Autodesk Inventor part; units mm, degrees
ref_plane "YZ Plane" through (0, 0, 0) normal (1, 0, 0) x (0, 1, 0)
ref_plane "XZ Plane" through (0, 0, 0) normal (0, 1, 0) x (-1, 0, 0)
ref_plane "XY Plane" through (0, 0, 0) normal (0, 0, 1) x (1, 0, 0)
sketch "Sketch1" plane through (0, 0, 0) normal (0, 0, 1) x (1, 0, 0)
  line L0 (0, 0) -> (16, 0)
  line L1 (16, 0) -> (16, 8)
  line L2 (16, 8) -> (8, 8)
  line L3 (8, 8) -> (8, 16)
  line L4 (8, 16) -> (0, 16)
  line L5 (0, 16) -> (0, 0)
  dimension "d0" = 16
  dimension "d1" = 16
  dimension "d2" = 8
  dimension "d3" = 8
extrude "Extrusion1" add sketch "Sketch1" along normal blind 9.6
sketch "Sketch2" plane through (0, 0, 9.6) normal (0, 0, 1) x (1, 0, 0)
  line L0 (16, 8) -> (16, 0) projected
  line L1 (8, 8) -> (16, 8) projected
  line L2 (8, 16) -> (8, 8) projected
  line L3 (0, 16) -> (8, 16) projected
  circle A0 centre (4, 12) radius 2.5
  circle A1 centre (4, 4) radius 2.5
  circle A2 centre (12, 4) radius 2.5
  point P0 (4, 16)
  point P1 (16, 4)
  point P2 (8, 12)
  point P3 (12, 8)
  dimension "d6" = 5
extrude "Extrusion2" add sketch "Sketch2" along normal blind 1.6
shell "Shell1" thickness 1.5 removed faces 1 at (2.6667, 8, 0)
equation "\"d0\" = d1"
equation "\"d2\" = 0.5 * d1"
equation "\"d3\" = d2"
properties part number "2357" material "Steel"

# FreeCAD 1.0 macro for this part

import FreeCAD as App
import Part
import Sketcher
from FreeCAD import Vector
Q = App.Units.Quantity


def faces_at(feature, points):
    """Names of the faces that lie closest to the given points."""
    faces = feature.Shape.Faces
    near = lambda p: min(range(len(faces)), key=lambda i: faces[i].distToShape(Part.Vertex(*p))[0])
    return sorted({f"Face{near(p) + 1}" for p in points})


def add_polygon(sketch, points):
    """Adds a closed chain of lines whose ends are joined by coincident constraints."""
    first, n = sketch.GeometryCount, len(points)
    for a, b in zip(points, points[1:] + points[:1]):
        sketch.addGeometry(Part.LineSegment(App.Vector(*a, 0), App.Vector(*b, 0)), False)
    for i in range(n):
        sketch.addConstraint(Sketcher.Constraint("Coincident", first + i, 2, first + (i + 1) % n, 1))

doc = App.newDocument("Part")
body = doc.addObject("PartDesign::Body", "Body")

# Sketch on XY plane
sketch1 = doc.addObject("Sketcher::SketchObject", "Sketch")
body.addObject(sketch1)
sketch1.AttachmentSupport = (doc.XY_Plane, [""])
sketch1.MapMode = "FlatFace"
add_polygon(sketch1, [(0, 16), (0, 0), (16, 0), (16, 8), (8, 8), (8, 16)])  # lines 0-5
sketch1.addConstraint(Sketcher.Constraint("Vertical", 0))
sketch1.addConstraint(Sketcher.Constraint("Horizontal", 1))
sketch1.addConstraint(Sketcher.Constraint("Vertical", 2))
sketch1.addConstraint(Sketcher.Constraint("Horizontal", 3))
sketch1.addConstraint(Sketcher.Constraint("Vertical", 4))
sketch1.addConstraint(Sketcher.Constraint("Horizontal", 5))
sketch1.addConstraint(Sketcher.Constraint("Coincident", 0, 2, -1, 1))
sketch1.addConstraint(Sketcher.Constraint("Equal", 3, 5))
sketch1.addConstraint(Sketcher.Constraint("Equal", 1, 0))
sketch1.addConstraint(Sketcher.Constraint("Equal", 5, 2))
sketch1.addConstraint(Sketcher.Constraint("DistanceX", 1, 1, 1, 2, Q("16 mm")))
pad1 = doc.addObject("PartDesign::Pad", "Pad")
body.addObject(pad1)
pad1.Profile = sketch1
pad1.Length = 9.6

# Sketch on XY plane
sketch2 = doc.addObject("Sketcher::SketchObject", "Sketch001")
body.addObject(sketch2)
sketch2.AttachmentSupport = (doc.XY_Plane, [""])
sketch2.MapMode = "FlatFace"
sketch2.AttachmentOffset = App.Placement(Vector(0, 0, 9.6), App.Rotation())
sketch2.addGeometry(Part.Circle(Vector(4, 12, 0), Vector(0, 0, 1), 2.5), False)
sketch2.addGeometry(Part.Circle(Vector(4, 4, 0), Vector(0, 0, 1), 2.5), False)
sketch2.addGeometry(Part.Circle(Vector(12, 4, 0), Vector(0, 0, 1), 2.5), False)
sketch2.addConstraint(Sketcher.Constraint("Equal", 0, 1))
sketch2.addConstraint(Sketcher.Constraint("Equal", 1, 2))
sketch2.addConstraint(Sketcher.Constraint("Horizontal", 1, 3, 2, 3))
sketch2.addConstraint(Sketcher.Constraint("Vertical", 0, 3, 1, 3))
sketch2.addConstraint(Sketcher.Constraint("Diameter", 0, Q("5 mm")))
sketch2.addConstraint(Sketcher.Constraint("DistanceX", -1, 1, 0, 3, Q("4 mm")))
sketch2.addConstraint(Sketcher.Constraint("DistanceY", -1, 1, 0, 3, Q("12 mm")))
sketch2.addConstraint(Sketcher.Constraint("DistanceY", -1, 1, 1, 3, Q("4 mm")))
sketch2.addConstraint(Sketcher.Constraint("DistanceX", -1, 1, 2, 3, Q("12 mm")))
pad2 = doc.addObject("PartDesign::Pad", "Pad001")
body.addObject(pad2)
pad2.Profile = sketch2
pad2.Length = 1.6
doc.recompute()

thickness = doc.addObject("PartDesign::Thickness", "Thickness")
body.addObject(thickness)
thickness.Base = (pad2, faces_at(pad2, [(2.667, 8, 0)]))
thickness.Value = 1.5
thickness.Reversed = True
thickness.Join = "Intersection"

doc.recompute()
